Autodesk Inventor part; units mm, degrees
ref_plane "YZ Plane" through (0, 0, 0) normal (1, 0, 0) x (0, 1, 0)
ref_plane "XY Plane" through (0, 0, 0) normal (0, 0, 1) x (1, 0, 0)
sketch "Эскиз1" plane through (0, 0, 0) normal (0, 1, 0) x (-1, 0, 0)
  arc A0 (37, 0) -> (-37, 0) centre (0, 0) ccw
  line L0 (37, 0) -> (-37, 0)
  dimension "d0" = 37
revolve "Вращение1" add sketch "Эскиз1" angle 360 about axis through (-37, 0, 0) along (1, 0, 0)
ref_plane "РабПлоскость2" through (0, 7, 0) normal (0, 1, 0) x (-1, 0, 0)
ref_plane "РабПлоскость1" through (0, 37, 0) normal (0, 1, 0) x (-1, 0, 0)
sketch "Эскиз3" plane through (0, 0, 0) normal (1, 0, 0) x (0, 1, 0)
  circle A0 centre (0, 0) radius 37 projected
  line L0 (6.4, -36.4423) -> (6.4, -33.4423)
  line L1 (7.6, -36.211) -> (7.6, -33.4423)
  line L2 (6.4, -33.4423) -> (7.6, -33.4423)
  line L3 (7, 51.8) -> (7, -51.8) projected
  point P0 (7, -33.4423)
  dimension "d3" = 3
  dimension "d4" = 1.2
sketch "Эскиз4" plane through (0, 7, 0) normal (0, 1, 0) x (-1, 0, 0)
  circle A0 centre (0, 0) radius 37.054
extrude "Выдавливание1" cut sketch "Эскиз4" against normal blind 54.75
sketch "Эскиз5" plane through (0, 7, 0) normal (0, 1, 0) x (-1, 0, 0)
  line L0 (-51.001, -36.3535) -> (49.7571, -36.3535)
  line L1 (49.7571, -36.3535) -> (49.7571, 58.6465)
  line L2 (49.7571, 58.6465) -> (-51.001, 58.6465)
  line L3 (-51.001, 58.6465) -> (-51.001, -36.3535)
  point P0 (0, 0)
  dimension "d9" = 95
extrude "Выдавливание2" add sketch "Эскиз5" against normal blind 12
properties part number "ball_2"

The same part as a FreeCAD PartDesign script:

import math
import FreeCAD as App
import Part
import Sketcher
from FreeCAD import Vector

doc = App.newDocument("Part")
body = doc.addObject("PartDesign::Body", "Body")

sketch1 = body.newObject("Sketcher::SketchObject", "Sketch")
sketch1.AttachmentSupport = (doc.getObject("XZ_Plane"), [""])
sketch1.MapMode = "FlatFace"
sketch1.addGeometry([
    Part.LineSegment(Vector(37, 0, 0), Vector(-37, 0, 0)),
    Part.ArcOfCircle(Part.Circle(Vector(0, 0, 0), Vector(0, 0, 1), 37), math.radians(0), math.radians(180)),
], False)
sketch1.addConstraint([
    Sketcher.Constraint("Coincident", 0, 1, 1, 1),
    Sketcher.Constraint("Coincident", 1, 2, 0, 2),
    Sketcher.Constraint("Horizontal", 0),
    Sketcher.Constraint("Coincident", 1, 3, -1, 1),
    Sketcher.Constraint("PointOnObject", 0, 1, -1),
    Sketcher.Constraint("Radius", 1, 37.0),
])
revolution = body.newObject("PartDesign::Revolution", "Revolution")
revolution.Profile = sketch1
revolution.ReferenceAxis = (sketch1, ["H_Axis"])
revolution.Angle = 360

sketch2 = body.newObject("Sketcher::SketchObject", "Sketch001")
sketch2.AttachmentSupport = (doc.getObject("XZ_Plane"), [""])
sketch2.MapMode = "FlatFace"
sketch2.AttachmentOffset = App.Placement(Vector(0, 0, -7), App.Rotation())
sketch2.addGeometry(Part.Circle(Vector(0, 0, 0), Vector(0, 0, 1), 37), False)
sketch2.addConstraint([
    Sketcher.Constraint("Coincident", 0, 3, -1, 1),
    Sketcher.Constraint("Diameter", 0, 74.108),
])
pocket1 = body.newObject("PartDesign::Pocket", "Pocket")
pocket1.Profile = sketch2
pocket1.Length = 54.75
pocket1.Reversed = True

sketch3 = body.newObject("Sketcher::SketchObject", "Sketch002")
sketch3.AttachmentSupport = (doc.getObject("XZ_Plane"), [""])
sketch3.MapMode = "FlatFace"
sketch3.AttachmentOffset = App.Placement(Vector(0, 0, -7), App.Rotation())
sketch3.addGeometry([
    Part.LineSegment(Vector(51, 59, 0), Vector(51, -36, 0)),
    Part.LineSegment(Vector(51, -36, 0), Vector(-50, -36, 0)),
    Part.LineSegment(Vector(-50, -36, 0), Vector(-50, 59, 0)),
    Part.LineSegment(Vector(-50, 59, 0), Vector(51, 59, 0)),
], False)
sketch3.addConstraint([
    Sketcher.Constraint("Coincident", 0, 2, 1, 1),
    Sketcher.Constraint("Coincident", 1, 2, 2, 1),
    Sketcher.Constraint("Coincident", 2, 2, 3, 1),
    Sketcher.Constraint("Coincident", 3, 2, 0, 1),
    Sketcher.Constraint("Vertical", 0),
    Sketcher.Constraint("Horizontal", 1),
    Sketcher.Constraint("Vertical", 2),
    Sketcher.Constraint("Horizontal", 3),
    Sketcher.Constraint("DistanceY", 0, 2, 0, 1, 95.0),
    Sketcher.Constraint("DistanceX", 1, 2, 1, 1, 100.758),
    Sketcher.Constraint("DistanceX", -1, 1, 0, 2, 51.001),
    Sketcher.Constraint("DistanceY", 0, 2, -1, 1, 36.3535),
])
pad1 = body.newObject("PartDesign::Pad", "Pad")
pad1.Profile = sketch3
pad1.Length = 12

doc.recompute()
